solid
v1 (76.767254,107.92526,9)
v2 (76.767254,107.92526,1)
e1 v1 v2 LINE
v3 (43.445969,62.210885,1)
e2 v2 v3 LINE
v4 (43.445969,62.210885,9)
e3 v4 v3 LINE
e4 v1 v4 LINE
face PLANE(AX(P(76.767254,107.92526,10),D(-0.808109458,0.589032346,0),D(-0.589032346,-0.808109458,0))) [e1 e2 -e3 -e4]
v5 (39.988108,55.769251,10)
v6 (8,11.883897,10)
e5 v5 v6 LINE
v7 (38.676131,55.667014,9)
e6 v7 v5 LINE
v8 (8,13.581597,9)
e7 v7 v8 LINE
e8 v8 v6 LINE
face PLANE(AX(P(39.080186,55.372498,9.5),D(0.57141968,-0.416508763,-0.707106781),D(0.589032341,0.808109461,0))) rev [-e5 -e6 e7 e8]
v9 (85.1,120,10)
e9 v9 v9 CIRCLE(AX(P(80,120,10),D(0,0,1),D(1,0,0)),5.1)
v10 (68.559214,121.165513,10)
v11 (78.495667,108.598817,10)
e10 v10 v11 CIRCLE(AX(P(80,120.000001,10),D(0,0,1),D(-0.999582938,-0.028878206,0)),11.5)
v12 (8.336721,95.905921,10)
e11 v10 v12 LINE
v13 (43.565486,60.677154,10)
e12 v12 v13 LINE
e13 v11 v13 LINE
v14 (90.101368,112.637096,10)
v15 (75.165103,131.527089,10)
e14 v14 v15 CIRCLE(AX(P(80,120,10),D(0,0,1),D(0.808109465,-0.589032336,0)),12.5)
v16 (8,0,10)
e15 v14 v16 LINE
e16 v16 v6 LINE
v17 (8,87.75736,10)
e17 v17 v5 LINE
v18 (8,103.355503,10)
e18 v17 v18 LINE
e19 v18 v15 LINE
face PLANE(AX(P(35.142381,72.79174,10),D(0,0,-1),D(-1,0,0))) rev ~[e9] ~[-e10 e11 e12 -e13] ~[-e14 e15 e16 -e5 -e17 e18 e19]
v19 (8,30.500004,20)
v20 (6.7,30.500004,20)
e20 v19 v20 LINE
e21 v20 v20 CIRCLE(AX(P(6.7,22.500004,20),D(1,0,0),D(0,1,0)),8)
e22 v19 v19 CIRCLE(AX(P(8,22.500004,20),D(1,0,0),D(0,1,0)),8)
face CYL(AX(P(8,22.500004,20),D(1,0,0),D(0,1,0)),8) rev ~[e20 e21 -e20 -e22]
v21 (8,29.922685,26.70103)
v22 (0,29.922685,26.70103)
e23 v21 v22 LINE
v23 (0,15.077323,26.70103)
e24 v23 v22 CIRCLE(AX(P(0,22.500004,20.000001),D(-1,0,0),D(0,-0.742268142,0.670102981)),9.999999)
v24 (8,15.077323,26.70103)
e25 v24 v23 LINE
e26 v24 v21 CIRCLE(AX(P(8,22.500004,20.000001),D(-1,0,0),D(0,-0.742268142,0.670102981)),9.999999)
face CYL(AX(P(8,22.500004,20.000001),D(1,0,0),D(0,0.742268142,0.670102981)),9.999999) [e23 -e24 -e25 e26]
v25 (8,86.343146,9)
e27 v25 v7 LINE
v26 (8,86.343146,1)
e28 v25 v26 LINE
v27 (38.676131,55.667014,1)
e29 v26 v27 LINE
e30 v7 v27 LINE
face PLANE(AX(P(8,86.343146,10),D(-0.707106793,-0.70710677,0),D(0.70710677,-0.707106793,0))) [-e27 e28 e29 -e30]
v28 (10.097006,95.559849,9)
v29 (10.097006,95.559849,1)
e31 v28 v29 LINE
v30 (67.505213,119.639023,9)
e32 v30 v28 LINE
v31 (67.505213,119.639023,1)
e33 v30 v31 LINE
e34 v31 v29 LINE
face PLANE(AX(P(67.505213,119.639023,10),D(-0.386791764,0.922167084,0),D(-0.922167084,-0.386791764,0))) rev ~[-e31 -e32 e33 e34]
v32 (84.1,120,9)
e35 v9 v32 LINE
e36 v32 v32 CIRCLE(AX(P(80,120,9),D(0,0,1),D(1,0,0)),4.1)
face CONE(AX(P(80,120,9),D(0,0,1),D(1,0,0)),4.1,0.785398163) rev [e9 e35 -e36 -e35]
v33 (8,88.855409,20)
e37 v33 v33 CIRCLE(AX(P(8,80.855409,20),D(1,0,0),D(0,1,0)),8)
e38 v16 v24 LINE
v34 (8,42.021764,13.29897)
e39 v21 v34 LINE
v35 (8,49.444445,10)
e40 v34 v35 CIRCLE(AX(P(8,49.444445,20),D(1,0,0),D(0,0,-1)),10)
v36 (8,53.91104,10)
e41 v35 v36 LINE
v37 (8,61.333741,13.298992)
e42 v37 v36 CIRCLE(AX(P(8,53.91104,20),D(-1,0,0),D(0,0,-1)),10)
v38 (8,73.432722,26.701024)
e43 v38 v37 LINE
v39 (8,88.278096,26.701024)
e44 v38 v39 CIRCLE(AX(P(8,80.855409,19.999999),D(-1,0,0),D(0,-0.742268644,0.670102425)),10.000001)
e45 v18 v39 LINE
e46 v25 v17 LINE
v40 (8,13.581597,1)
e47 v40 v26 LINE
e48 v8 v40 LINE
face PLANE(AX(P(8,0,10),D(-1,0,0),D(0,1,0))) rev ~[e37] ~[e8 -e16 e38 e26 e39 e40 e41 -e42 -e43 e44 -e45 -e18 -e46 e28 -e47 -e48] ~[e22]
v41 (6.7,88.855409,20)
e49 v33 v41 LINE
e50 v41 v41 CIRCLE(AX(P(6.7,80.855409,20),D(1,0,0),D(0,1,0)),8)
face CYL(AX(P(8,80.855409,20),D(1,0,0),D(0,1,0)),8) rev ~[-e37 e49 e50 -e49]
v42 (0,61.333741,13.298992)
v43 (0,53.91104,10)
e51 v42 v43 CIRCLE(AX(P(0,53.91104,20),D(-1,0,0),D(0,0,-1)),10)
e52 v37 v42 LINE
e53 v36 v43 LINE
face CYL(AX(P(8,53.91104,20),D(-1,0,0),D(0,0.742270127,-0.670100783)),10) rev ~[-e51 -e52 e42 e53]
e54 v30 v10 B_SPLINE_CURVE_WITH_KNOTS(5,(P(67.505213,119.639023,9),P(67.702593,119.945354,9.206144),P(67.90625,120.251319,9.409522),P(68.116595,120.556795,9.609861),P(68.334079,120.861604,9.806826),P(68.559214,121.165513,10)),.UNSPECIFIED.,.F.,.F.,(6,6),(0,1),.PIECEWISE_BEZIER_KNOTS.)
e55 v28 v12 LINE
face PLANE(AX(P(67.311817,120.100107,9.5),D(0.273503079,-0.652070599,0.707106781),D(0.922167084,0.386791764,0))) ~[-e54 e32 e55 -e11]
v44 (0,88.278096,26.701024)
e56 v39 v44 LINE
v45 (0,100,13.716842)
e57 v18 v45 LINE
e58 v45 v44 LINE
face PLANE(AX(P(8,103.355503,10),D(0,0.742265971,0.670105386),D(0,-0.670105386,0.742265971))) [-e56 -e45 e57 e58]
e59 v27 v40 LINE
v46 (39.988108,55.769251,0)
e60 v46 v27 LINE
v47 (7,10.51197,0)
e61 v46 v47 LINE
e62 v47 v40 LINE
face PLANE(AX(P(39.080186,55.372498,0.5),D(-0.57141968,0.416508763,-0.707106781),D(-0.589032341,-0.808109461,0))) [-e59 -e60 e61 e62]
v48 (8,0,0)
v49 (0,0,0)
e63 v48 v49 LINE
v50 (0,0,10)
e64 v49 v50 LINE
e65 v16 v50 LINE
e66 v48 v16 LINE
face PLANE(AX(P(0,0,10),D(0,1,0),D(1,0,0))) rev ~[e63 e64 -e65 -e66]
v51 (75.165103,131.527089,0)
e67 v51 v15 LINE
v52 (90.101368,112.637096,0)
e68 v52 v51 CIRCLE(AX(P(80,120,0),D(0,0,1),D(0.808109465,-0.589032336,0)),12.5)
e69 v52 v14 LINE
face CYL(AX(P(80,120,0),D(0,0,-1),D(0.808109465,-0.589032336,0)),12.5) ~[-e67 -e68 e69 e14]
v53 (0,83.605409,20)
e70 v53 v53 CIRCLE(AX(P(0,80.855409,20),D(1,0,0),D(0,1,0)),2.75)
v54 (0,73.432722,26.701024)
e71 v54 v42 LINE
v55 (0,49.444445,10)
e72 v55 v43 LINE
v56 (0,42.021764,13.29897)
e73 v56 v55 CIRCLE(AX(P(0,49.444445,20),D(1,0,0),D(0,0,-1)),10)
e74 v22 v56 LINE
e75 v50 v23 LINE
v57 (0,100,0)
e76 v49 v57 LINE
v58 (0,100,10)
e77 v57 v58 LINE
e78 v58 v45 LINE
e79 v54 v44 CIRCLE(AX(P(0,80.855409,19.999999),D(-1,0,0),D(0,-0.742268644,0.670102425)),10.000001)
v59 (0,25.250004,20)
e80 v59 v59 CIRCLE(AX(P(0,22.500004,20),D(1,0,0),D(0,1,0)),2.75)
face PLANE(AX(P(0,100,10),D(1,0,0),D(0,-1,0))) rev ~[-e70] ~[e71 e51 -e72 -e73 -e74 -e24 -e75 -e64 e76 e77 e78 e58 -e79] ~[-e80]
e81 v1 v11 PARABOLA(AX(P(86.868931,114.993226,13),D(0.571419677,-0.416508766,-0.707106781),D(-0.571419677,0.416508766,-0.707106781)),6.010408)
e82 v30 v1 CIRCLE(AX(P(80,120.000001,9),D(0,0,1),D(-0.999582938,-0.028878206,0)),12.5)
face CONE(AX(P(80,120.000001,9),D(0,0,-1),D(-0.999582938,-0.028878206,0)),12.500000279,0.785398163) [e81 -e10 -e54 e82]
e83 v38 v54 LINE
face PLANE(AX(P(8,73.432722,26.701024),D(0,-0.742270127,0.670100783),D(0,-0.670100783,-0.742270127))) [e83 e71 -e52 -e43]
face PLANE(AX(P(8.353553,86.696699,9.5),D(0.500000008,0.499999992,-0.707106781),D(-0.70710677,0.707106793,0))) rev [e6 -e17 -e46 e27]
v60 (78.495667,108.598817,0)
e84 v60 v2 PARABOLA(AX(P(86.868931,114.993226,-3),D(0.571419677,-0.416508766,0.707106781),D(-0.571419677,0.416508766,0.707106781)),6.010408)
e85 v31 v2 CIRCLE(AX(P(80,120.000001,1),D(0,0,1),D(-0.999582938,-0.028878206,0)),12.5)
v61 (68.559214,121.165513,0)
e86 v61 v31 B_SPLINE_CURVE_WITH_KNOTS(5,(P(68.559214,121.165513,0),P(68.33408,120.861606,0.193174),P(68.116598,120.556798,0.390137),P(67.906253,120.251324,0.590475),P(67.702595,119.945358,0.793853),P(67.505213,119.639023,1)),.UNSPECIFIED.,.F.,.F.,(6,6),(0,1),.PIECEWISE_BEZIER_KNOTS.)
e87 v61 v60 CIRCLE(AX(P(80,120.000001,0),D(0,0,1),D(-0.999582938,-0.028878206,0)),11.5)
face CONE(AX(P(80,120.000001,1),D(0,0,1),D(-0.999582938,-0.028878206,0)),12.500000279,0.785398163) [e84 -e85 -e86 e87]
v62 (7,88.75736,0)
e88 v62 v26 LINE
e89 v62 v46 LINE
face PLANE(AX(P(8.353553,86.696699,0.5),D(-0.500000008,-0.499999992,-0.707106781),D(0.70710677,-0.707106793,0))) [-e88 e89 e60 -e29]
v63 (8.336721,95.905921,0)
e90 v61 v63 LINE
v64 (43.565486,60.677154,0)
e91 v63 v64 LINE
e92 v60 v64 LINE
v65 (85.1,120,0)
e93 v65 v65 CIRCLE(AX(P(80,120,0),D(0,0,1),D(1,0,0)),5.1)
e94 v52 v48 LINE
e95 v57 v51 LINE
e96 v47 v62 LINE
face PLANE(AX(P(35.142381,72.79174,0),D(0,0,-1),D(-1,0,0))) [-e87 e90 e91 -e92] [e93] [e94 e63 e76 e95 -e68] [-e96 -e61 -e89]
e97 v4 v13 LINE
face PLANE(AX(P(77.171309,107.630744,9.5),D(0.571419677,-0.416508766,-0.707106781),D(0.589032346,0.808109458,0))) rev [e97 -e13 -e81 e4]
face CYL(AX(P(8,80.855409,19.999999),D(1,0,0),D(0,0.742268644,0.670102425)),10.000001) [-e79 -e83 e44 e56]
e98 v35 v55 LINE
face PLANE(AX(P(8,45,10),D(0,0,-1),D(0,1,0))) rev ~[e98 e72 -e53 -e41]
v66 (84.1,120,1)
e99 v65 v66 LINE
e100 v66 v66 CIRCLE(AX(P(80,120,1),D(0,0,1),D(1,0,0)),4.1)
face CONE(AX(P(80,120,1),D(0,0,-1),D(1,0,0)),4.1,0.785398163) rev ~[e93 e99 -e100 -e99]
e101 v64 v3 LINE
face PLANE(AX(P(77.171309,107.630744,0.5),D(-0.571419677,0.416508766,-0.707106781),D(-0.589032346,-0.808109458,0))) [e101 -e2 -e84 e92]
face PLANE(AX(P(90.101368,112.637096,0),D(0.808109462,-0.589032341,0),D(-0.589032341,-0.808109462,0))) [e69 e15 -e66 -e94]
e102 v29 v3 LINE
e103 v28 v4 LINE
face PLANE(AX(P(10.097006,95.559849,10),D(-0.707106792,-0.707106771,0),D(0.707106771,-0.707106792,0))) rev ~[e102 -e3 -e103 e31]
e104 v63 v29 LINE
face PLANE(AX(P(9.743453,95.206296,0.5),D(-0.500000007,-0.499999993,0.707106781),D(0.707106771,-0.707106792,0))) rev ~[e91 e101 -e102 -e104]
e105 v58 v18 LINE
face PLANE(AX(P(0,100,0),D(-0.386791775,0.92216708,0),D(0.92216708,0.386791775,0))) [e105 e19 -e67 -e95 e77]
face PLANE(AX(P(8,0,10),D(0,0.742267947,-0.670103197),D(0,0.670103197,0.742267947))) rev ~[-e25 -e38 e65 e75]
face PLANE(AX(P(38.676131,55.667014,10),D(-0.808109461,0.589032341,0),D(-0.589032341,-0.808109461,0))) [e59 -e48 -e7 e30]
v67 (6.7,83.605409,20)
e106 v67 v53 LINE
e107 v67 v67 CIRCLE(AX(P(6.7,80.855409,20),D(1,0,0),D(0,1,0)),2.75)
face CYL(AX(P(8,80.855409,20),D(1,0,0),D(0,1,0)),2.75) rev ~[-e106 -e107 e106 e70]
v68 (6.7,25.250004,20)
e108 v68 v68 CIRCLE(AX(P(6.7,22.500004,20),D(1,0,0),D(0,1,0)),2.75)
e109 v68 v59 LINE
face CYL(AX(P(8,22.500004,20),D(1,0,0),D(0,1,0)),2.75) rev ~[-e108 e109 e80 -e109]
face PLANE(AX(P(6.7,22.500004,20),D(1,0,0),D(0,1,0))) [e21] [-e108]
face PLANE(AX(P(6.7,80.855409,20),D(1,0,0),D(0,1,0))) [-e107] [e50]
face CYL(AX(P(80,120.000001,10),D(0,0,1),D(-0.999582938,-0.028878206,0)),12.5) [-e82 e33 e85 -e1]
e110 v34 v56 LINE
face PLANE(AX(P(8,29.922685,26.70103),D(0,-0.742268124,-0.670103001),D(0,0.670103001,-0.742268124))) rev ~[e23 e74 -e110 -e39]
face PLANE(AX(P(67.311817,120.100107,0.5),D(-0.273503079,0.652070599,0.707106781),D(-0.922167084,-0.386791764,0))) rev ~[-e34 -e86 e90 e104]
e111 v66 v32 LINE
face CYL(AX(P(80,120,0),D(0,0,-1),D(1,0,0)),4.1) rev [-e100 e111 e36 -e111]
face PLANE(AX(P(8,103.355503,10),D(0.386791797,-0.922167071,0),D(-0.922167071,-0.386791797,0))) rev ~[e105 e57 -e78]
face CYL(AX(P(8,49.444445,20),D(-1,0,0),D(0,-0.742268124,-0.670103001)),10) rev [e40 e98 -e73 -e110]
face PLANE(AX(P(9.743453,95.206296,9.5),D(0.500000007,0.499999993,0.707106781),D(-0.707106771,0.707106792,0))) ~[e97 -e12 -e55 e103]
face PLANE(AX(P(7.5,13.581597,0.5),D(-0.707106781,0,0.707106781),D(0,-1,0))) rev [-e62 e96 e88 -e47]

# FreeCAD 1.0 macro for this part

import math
import FreeCAD as App
import Part
import Sketcher

V = App.Vector
Q = App.Units.Quantity


def edges_at(feature, points):
    """Names of the edges that pass closest to the given points."""
    edges = feature.Shape.Edges
    near = lambda p: min(range(len(edges)), key=lambda i: edges[i].distToShape(Part.Vertex(*p))[0])
    return sorted({f"Edge{near(p) + 1}" for p in points})

doc = App.newDocument("Part")
body = doc.addObject("PartDesign::Body", "Body")

# Sketch on XY plane
sketch1 = body.newObject("Sketcher::SketchObject", "Sketch")
sketch1.AttachmentSupport = (doc.getObject("XY_Plane"), [""])
sketch1.MapMode = "FlatFace"
sketch1.addGeometry([
    Part.LineSegment(V(0, 100, 0), V(0, 0, 0)),  # 0
    Part.LineSegment(V(0, 0, 0), V(8, 0, 0)),  # 1
    Part.LineSegment(V(8, 0, 0), V(90.101368, 112.637096, 0)),  # 2
    Part.ArcOfCircle(Part.Circle(V(80, 120, 0), V(0, 0, 1), 12.5), math.radians(-36.08837), math.radians(112.755018)),  # 3
    Part.LineSegment(V(75.165103, 131.527089, 0), V(0, 100, 0)),  # 4
    Part.Circle(V(80, 120, 0), V(0, 0, 1), 4.1),  # 5
], False)
sketch1.addConstraint([
    Sketcher.Constraint("Coincident", 0, 2, 1, 1),
    Sketcher.Constraint("Coincident", 1, 2, 2, 1),
    Sketcher.Constraint("Tangent", 2, 2, 3, 1),
    Sketcher.Constraint("Tangent", 3, 2, 4, 1),
    Sketcher.Constraint("Coincident", 4, 2, 0, 1),
    Sketcher.Constraint("Vertical", 0),
    Sketcher.Constraint("Horizontal", 1),
    Sketcher.Constraint("Coincident", 0, 2, -1, 1),
    Sketcher.Constraint("Coincident", 5, 3, 3, 3),
    Sketcher.Constraint("Diameter", 5, Q("8.2 mm")),
    Sketcher.Constraint("Radius", 3, Q("12.5 mm")),
    Sketcher.Constraint("DistanceX", 1, 1, 1, 2, Q("8 mm")),
    Sketcher.Constraint("DistanceY", 0, 2, 0, 1, Q("100 mm")),
    Sketcher.Constraint("DistanceX", -1, 1, 3, 3, Q("80 mm")),
    Sketcher.Constraint("DistanceY", -1, 1, 3, 3, Q("120 mm")),
])
pad1 = body.newObject("PartDesign::Pad", "Pad")
pad1.Profile = sketch1
pad1.Length = 10

# Sketch on XY plane
sketch2 = body.newObject("Sketcher::SketchObject", "Sketch001")
sketch2.AttachmentSupport = (doc.getObject("XY_Plane"), [""])
sketch2.MapMode = "FlatFace"
sketch2.AttachmentOffset = App.Placement(V(0, 0, 10), App.Rotation())
sketch2.addGeometry([
    Part.LineSegment(V(8, 86.343146, 0), V(8, 13.581597, 0)),  # 0
    Part.LineSegment(V(8, 13.581597, 0), V(38.676131, 55.667014, 0)),  # 1
    Part.LineSegment(V(38.676131, 55.667014, 0), V(8, 86.343146, 0)),  # 2
    Part.ArcOfCircle(Part.Circle(V(80, 120.000001, 0), V(0, 0, 1), 12.5), math.radians(-178.345171), math.radians(-104.988174)),  # 3
    Part.LineSegment(V(67.505213, 119.639023, 0), V(10.097006, 95.559849, 0)),  # 4
    Part.LineSegment(V(10.097006, 95.559849, 0), V(43.445969, 62.210885, 0)),  # 5
    Part.LineSegment(V(43.445969, 62.210885, 0), V(76.767254, 107.92526, 0)),  # 6
], False)
sketch2.addConstraint([
    Sketcher.Constraint("Coincident", 0, 2, 1, 1),
    Sketcher.Constraint("Coincident", 1, 2, 2, 1),
    Sketcher.Constraint("Coincident", 2, 2, 0, 1),
    Sketcher.Constraint("Coincident", 3, 1, 4, 1),
    Sketcher.Constraint("Coincident", 4, 2, 5, 1),
    Sketcher.Constraint("Coincident", 5, 2, 6, 1),
    Sketcher.Constraint("Coincident", 6, 2, 3, 2),
    Sketcher.Constraint("Vertical", 0),
    Sketcher.Constraint("Parallel", 2, 5),
    Sketcher.Constraint("Parallel", 1, 6),
    Sketcher.Constraint("Radius", 3, Q("12.5 mm")),
    Sketcher.Constraint("Angle", 2, Q("134.999999 deg")),
    Sketcher.Constraint("DistanceX", -1, 1, 3, 3, Q("80 mm")),
    Sketcher.Constraint("DistanceY", -1, 1, 3, 3, Q("120.000001 mm")),
    Sketcher.Constraint("DistanceX", -1, 1, 0, 2, Q("8 mm")),
    Sketcher.Constraint("Distance", 2, Q("43.382601 mm")),
    Sketcher.Constraint("DistanceY", 0, 2, 0, 1, Q("72.761549 mm")),
    Sketcher.Constraint("DistanceY", -1, 1, 4, 2, Q("95.559849 mm")),
    Sketcher.Constraint("DistanceX", -1, 1, 5, 2, Q("43.445969 mm")),
    Sketcher.Constraint("DistanceY", -1, 1, 6, 2, Q("107.92526 mm")),
    Sketcher.Constraint("DistanceX", 1, 2, 3, 1, Q("28.829082 mm")),
    Sketcher.Constraint("DistanceY", 1, 2, 3, 1, Q("63.972009 mm")),
])
pocket1 = body.newObject("PartDesign::Pocket", "Pocket")
pocket1.Profile = sketch2
pocket1.Length = 10

# Sketch on XY plane
sketch3 = body.newObject("Sketcher::SketchObject", "Sketch002")
sketch3.AttachmentSupport = (doc.getObject("XY_Plane"), [""])
sketch3.MapMode = "FlatFace"
sketch3.AttachmentOffset = App.Placement(V(0, 0, 10), App.Rotation())
sketch3.addGeometry([
    Part.LineSegment(V(0, 100, 0), V(0, 0, 0)),
    Part.LineSegment(V(0, 0, 0), V(8, 0, 0)),
    Part.LineSegment(V(8, 0, 0), V(8, 103.355503, 0)),
    Part.LineSegment(V(8, 103.355503, 0), V(0, 100, 0)),
], False)
sketch3.addConstraint([
    Sketcher.Constraint("Coincident", 0, 2, 1, 1),
    Sketcher.Constraint("Coincident", 1, 2, 2, 1),
    Sketcher.Constraint("Coincident", 2, 2, 3, 1),
    Sketcher.Constraint("Coincident", 3, 2, 0, 1),
    Sketcher.Constraint("Vertical", 0),
    Sketcher.Constraint("Horizontal", 1),
    Sketcher.Constraint("Vertical", 2),
    Sketcher.Constraint("Coincident", 0, 2, -1, 1),
    Sketcher.Constraint("DistanceX", 1, 1, 1, 2, Q("8 mm")),
    Sketcher.Constraint("DistanceY", 0, 2, 0, 1, Q("100 mm")),
    Sketcher.Constraint("DistanceY", 2, 1, 2, 2, Q("103.355503 mm")),
])
pad2 = body.newObject("PartDesign::Pad", "Pad001")
pad2.Profile = sketch3
pad2.Length = 20

# Sketch on YZ plane
sketch4 = body.newObject("Sketcher::SketchObject", "Sketch003")
sketch4.AttachmentSupport = (doc.getObject("YZ_Plane"), [""])
sketch4.MapMode = "FlatFace"
sketch4.AttachmentOffset = App.Placement(V(0, 0, 8), App.Rotation())
sketch4.addGeometry([
    Part.LineSegment(V(0, 10, 0), V(15.077323, 26.70103, 0)),  # 0
    Part.ArcOfCircle(Part.Circle(V(22.500004, 20.000001, 0), V(0, 0, 1), 9.999999), math.radians(42.075013), math.radians(137.924987)),  # 1
    Part.LineSegment(V(29.922685, 26.70103, 0), V(45, 10, 0)),  # 2
    Part.LineSegment(V(45, 10, 0), V(58.355503, 10, 0)),  # 3
    Part.LineSegment(V(58.355503, 10, 0), V(73.432722, 26.701024, 0)),  # 4
    Part.ArcOfCircle(Part.Circle(V(80.855409, 19.999999, 0), V(0, 0, 1), 10.000001), math.radians(42.07497), math.radians(137.92503)),  # 5
    Part.LineSegment(V(88.278096, 26.701024, 0), V(103.355503, 10, 0)),  # 6
    Part.LineSegment(V(103.355503, 10, 0), V(128.355503, 10, 0)),  # 7
    Part.LineSegment(V(128.355503, 10, 0), V(128.355503, 50, 0)),  # 8
    Part.LineSegment(V(128.355503, 50, 0), V(-25, 50, 0)),  # 9
    Part.LineSegment(V(-25, 50, 0), V(-25, 10, 0)),  # 10
    Part.LineSegment(V(-25, 10, 0), V(0, 10, 0)),  # 11
], False)
sketch4.addConstraint([
    Sketcher.Constraint("Tangent", 0, 2, 1, 2),
    Sketcher.Constraint("Tangent", 1, 1, 2, 1),
    Sketcher.Constraint("Coincident", 2, 2, 3, 1),
    Sketcher.Constraint("Coincident", 3, 2, 4, 1),
    Sketcher.Constraint("Coincident", 4, 2, 5, 2),
    Sketcher.Constraint("Coincident", 5, 1, 6, 1),
    Sketcher.Constraint("Coincident", 6, 2, 7, 1),
    Sketcher.Constraint("Coincident", 7, 2, 8, 1),
    Sketcher.Constraint("Coincident", 8, 2, 9, 1),
    Sketcher.Constraint("Coincident", 9, 2, 10, 1),
    Sketcher.Constraint("Coincident", 10, 2, 11, 1),
    Sketcher.Constraint("Coincident", 11, 2, 0, 1),
    Sketcher.Constraint("Horizontal", 3),
    Sketcher.Constraint("Horizontal", 7),
    Sketcher.Constraint("Vertical", 8),
    Sketcher.Constraint("Horizontal", 9),
    Sketcher.Constraint("Vertical", 10),
    Sketcher.Constraint("Horizontal", 11),
    Sketcher.Constraint("Equal", 1, 5),
    Sketcher.Constraint("PointOnObject", 11, 2, -2),
    Sketcher.Constraint("Horizontal", 1, 3, 5, 3),
    Sketcher.Constraint("Horizontal", 0, 2, 1, 1),
    Sketcher.Constraint("Horizontal", 4, 2, 5, 1),
    Sketcher.Constraint("Horizontal", 3, 2, 6, 2),
    Sketcher.Constraint("Horizontal", 7, 2, 10, 2),
    Sketcher.Constraint("Equal", 7, 11),
    Sketcher.Constraint("Radius", 1, Q("9.999999 mm")),
    Sketcher.Constraint("DistanceX", 7, 1, 7, 2, Q("25 mm")),
    Sketcher.Constraint("DistanceY", 8, 1, 8, 2, Q("40 mm")),
    Sketcher.Constraint("DistanceY", -1, 1, 1, 3, Q("20.000001 mm")),
    Sketcher.Constraint("DistanceX", -1, 1, 2, 2, Q("45 mm")),
    Sketcher.Constraint("DistanceY", -1, 1, 2, 2, Q("10 mm")),
    Sketcher.Constraint("DistanceX", 3, 2, 6, 2, Q("45 mm")),
    Sketcher.Constraint("DistanceX", 1, 3, 3, 2, Q("35.855499 mm")),
    Sketcher.Constraint("DistanceX", -1, 1, 5, 3, Q("80.855409 mm")),
    Sketcher.Constraint("DistanceX", -1, 1, 4, 2, Q("73.432722 mm")),
])
pocket2 = body.newObject("PartDesign::Pocket", "Pocket001")
pocket2.Profile = sketch4
pocket2.Length = 10
doc.recompute()

chamfer = body.newObject("PartDesign::Chamfer", "Chamfer")
chamfer.Base = (pocket2, edges_at(pocket2, [(75.9, 120, 10), (75.9, 120, 0)]))
chamfer.Size = 1
doc.recompute()

chamfer2 = body.newObject("PartDesign::Chamfer", "Chamfer001")
chamfer2.Base = (chamfer, edges_at(chamfer, [
    (38.801, 107.599, 10),
    (70.195, 112.247, 10),
    (60.107, 85.068, 10),
    (26.771, 78.885, 10),
    (23.338, 71.005, 10),
    (23.338, 34.624, 10),
    (70.195, 112.247, 0),
    (60.107, 85.068, 0),
    (26.771, 78.885, 0),
    (38.801, 107.599, 0),
    (23.338, 34.624, 0),
    (8, 49.962, 0),
    (23.338, 71.005, 0),
]))
chamfer2.Size = 1

# Sketch on YZ plane
sketch5 = body.newObject("Sketcher::SketchObject", "Sketch004")
sketch5.AttachmentSupport = (doc.getObject("YZ_Plane"), [""])
sketch5.MapMode = "FlatFace"
sketch5.AttachmentOffset = App.Placement(V(0, 0, 8), App.Rotation())
sketch5.addGeometry([
    Part.Circle(V(22.500004, 20, 0), V(0, 0, 1), 2.75),
    Part.Circle(V(80.855409, 20, 0), V(0, 0, 1), 2.75),
], False)
sketch5.addConstraint([
    Sketcher.Constraint("Equal", 0, 1),
    Sketcher.Constraint("Horizontal", 0, 3, 1, 3),
    Sketcher.Constraint("Diameter", 0, Q("5.5 mm")),
    Sketcher.Constraint("DistanceY", -1, 1, 0, 3, Q("20 mm")),
    Sketcher.Constraint("DistanceX", -1, 1, 1, 3, Q("80.855409 mm")),
    Sketcher.Constraint("DistanceX", -1, 1, 0, 3, Q("22.500004 mm")),
])
pocket3 = body.newObject("PartDesign::Pocket", "Pocket002")
pocket3.Profile = sketch5
pocket3.Type = "ThroughAll"

# Sketch on YZ plane
sketch6 = body.newObject("Sketcher::SketchObject", "Sketch005")
sketch6.AttachmentSupport = (doc.getObject("YZ_Plane"), [""])
sketch6.MapMode = "FlatFace"
sketch6.AttachmentOffset = App.Placement(V(0, 0, 8), App.Rotation())
sketch6.addGeometry([
    Part.Circle(V(22.500004, 20, 0), V(0, 0, 1), 8),
    Part.Circle(V(80.855409, 20, 0), V(0, 0, 1), 8),
], False)
sketch6.addConstraint([
    Sketcher.Constraint("Equal", 0, 1),
    Sketcher.Constraint("Horizontal", 0, 3, 1, 3),
    Sketcher.Constraint("Diameter", 0, Q("16 mm")),
    Sketcher.Constraint("DistanceY", -1, 1, 0, 3, Q("20 mm")),
    Sketcher.Constraint("DistanceX", -1, 1, 1, 3, Q("80.855409 mm")),
    Sketcher.Constraint("DistanceX", -1, 1, 0, 3, Q("22.500004 mm")),
])
pocket4 = body.newObject("PartDesign::Pocket", "Pocket003")
pocket4.Profile = sketch6
pocket4.Length = 1.3
doc.recompute()

fillet = body.newObject("PartDesign::Fillet", "Fillet")
fillet.Base = (pocket4, edges_at(pocket4, [(4, 58.356, 10), (4, 45, 10)]))
fillet.Radius = 10

doc.recompute()
